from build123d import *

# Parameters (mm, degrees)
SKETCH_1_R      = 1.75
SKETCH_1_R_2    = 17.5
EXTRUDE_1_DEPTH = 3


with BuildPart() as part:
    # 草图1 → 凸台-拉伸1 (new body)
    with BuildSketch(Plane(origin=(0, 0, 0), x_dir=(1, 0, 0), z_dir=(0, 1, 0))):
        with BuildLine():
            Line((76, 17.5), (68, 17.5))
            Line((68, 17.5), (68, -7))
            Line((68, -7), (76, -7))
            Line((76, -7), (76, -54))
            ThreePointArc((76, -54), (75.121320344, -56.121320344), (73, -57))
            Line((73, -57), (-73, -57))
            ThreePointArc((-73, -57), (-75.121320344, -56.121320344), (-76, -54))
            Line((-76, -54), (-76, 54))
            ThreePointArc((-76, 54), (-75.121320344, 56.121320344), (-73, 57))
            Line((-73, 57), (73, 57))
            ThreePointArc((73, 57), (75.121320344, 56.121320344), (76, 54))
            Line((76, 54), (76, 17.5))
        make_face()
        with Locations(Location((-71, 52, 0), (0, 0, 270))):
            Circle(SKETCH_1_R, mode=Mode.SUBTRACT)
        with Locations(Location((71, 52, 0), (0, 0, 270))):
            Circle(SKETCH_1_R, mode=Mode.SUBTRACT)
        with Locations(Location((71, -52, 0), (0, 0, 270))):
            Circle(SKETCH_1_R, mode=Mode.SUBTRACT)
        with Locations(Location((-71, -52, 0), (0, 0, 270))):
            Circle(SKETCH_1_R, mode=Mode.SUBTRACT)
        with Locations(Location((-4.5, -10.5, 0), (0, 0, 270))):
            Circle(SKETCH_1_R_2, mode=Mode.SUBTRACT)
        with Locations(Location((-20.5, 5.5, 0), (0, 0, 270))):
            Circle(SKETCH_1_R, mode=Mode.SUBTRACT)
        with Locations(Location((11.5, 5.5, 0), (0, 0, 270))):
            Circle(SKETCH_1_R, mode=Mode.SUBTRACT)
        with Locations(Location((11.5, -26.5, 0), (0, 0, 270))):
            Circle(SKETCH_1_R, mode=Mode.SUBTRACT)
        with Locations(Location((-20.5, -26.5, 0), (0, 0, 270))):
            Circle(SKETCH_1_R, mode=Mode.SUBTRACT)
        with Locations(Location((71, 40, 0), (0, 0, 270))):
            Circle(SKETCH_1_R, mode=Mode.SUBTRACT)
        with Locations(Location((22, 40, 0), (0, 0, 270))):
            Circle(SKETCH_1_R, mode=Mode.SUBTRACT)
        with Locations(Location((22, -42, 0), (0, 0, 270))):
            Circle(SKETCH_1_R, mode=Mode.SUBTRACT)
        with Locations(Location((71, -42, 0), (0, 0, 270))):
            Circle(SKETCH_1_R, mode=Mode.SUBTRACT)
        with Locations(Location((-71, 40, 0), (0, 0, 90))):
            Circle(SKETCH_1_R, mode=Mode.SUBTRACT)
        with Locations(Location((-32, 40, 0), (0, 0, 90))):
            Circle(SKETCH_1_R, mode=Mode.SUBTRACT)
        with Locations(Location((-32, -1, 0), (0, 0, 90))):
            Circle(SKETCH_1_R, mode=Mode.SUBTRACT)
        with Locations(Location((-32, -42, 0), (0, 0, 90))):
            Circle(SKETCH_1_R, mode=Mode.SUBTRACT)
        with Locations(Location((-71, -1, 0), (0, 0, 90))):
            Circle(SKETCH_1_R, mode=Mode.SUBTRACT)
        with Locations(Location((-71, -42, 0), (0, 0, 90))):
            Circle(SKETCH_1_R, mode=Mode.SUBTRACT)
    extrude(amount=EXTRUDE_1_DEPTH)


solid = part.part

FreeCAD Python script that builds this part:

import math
import FreeCAD as App
import Part
import Sketcher

V = App.Vector
Q = App.Units.Quantity

doc = App.newDocument("Part")
params = doc.addObject("Spreadsheet::Sheet", "Params")
for row, (alias, value) in enumerate([
    ("sketch1_diameter", "35 mm"),
    ("sketch1_radius", "3 mm"),
    ("sketch1_diameter2", "3.5 mm"),
    ("sketch1_width", "8 mm"),
    ("sketch1_width2", "146 mm"),
    ("pad1_length", "3 mm"),
], start=1):
    params.set(f"A{row}", alias)
    params.set(f"B{row}", "=" + value)
    params.setAlias(f"B{row}", alias)

body = doc.addObject("PartDesign::Body", "Body")

# Sketch on XZ plane
sketch1 = doc.addObject("Sketcher::SketchObject", "Sketch")
body.addObject(sketch1)
sketch1.AttachmentSupport = (doc.XZ_Plane, [""])
sketch1.MapMode = "FlatFace"
sketch1.addGeometry(Part.LineSegment(V(68, -17.5, 0), V(76, -17.5, 0)), False)
sketch1.addGeometry(Part.LineSegment(V(76, -17.5, 0), V(76, -54, 0)), False)
sketch1.addGeometry(Part.ArcOfCircle(Part.Circle(V(73, -54, 0), V(0, 0, 1), 3), math.radians(-90), math.radians(0)), False)
sketch1.addGeometry(Part.LineSegment(V(73, -57, 0), V(-73, -57, 0)), False)
sketch1.addGeometry(Part.ArcOfCircle(Part.Circle(V(-73, -54, 0), V(0, 0, 1), 3), math.radians(180), math.radians(270)), False)
sketch1.addGeometry(Part.LineSegment(V(-76, -54, 0), V(-76, 54, 0)), False)
sketch1.addGeometry(Part.ArcOfCircle(Part.Circle(V(-73, 54, 0), V(0, 0, 1), 3), math.radians(90), math.radians(180)), False)
sketch1.addGeometry(Part.LineSegment(V(-73, 57, 0), V(73, 57, 0)), False)
sketch1.addGeometry(Part.ArcOfCircle(Part.Circle(V(73, 54, 0), V(0, 0, 1), 3), math.radians(0), math.radians(90)), False)
sketch1.addGeometry(Part.LineSegment(V(76, 54, 0), V(76, 7, 0)), False)
sketch1.addGeometry(Part.LineSegment(V(76, 7, 0), V(68, 7, 0)), False)
sketch1.addGeometry(Part.LineSegment(V(68, 7, 0), V(68, -17.5, 0)), False)
sketch1.addGeometry(Part.Circle(V(71, 52, 0), V(0, 0, 1), 1.8), False)
sketch1.addGeometry(Part.Circle(V(71, 42, 0), V(0, 0, 1), 1.8), False)
sketch1.addGeometry(Part.Circle(V(22, 42, 0), V(0, 0, 1), 1.8), False)
sketch1.addGeometry(Part.Circle(V(11.5, 26.5, 0), V(0, 0, 1), 1.8), False)
sketch1.addGeometry(Part.Circle(V(-32, 42, 0), V(0, 0, 1), 1.8), False)
sketch1.addGeometry(Part.Circle(V(-71, 52, 0), V(0, 0, 1), 1.8), False)
sketch1.addGeometry(Part.Circle(V(-71, 42, 0), V(0, 0, 1), 1.8), False)
sketch1.addGeometry(Part.Circle(V(-20.5, 26.5, 0), V(0, 0, 1), 1.8), False)
sketch1.addGeometry(Part.Circle(V(-4.5, 10.5, 0), V(0, 0, 1), 17.5), False)
sketch1.addGeometry(Part.Circle(V(-32, 1, 0), V(0, 0, 1), 1.8), False)
sketch1.addGeometry(Part.Circle(V(-71, 1, 0), V(0, 0, 1), 1.8), False)
sketch1.addGeometry(Part.Circle(V(11.5, -5.5, 0), V(0, 0, 1), 1.8), False)
sketch1.addGeometry(Part.Circle(V(71, -40, 0), V(0, 0, 1), 1.8), False)
sketch1.addGeometry(Part.Circle(V(71, -52, 0), V(0, 0, 1), 1.8), False)
sketch1.addGeometry(Part.Circle(V(22, -40, 0), V(0, 0, 1), 1.8), False)
sketch1.addGeometry(Part.Circle(V(-20.5, -5.5, 0), V(0, 0, 1), 1.8), False)
sketch1.addGeometry(Part.Circle(V(-32, -40, 0), V(0, 0, 1), 1.8), False)
sketch1.addGeometry(Part.Circle(V(-71, -40, 0), V(0, 0, 1), 1.8), False)
sketch1.addGeometry(Part.Circle(V(-71, -52, 0), V(0, 0, 1), 1.8), False)
sketch1.addConstraint(Sketcher.Constraint("Coincident", 0, 2, 1, 1))
sketch1.addConstraint(Sketcher.Constraint("Tangent", 1, 2, 2, 2))
sketch1.addConstraint(Sketcher.Constraint("Tangent", 2, 1, 3, 1))
sketch1.addConstraint(Sketcher.Constraint("Tangent", 3, 2, 4, 2))
sketch1.addConstraint(Sketcher.Constraint("Tangent", 4, 1, 5, 1))
sketch1.addConstraint(Sketcher.Constraint("Tangent", 5, 2, 6, 2))
sketch1.addConstraint(Sketcher.Constraint("Tangent", 6, 1, 7, 1))
sketch1.addConstraint(Sketcher.Constraint("Tangent", 7, 2, 8, 2))
sketch1.addConstraint(Sketcher.Constraint("Tangent", 8, 1, 9, 1))
sketch1.addConstraint(Sketcher.Constraint("Coincident", 9, 2, 10, 1))
sketch1.addConstraint(Sketcher.Constraint("Coincident", 10, 2, 11, 1))
sketch1.addConstraint(Sketcher.Constraint("Coincident", 11, 2, 0, 1))
sketch1.addConstraint(Sketcher.Constraint("Horizontal", 0))
sketch1.addConstraint(Sketcher.Constraint("Vertical", 1))
sketch1.addConstraint(Sketcher.Constraint("Horizontal", 3))
sketch1.addConstraint(Sketcher.Constraint("Vertical", 5))
sketch1.addConstraint(Sketcher.Constraint("Horizontal", 7))
sketch1.addConstraint(Sketcher.Constraint("Vertical", 9))
sketch1.addConstraint(Sketcher.Constraint("Horizontal", 10))
sketch1.addConstraint(Sketcher.Constraint("Vertical", 11))
sketch1.addConstraint(Sketcher.Constraint("Equal", 2, 4))
sketch1.addConstraint(Sketcher.Constraint("Equal", 4, 6))
sketch1.addConstraint(Sketcher.Constraint("Equal", 6, 8))
sketch1.addConstraint(Sketcher.Constraint("Equal", 12, 13))
sketch1.addConstraint(Sketcher.Constraint("Equal", 13, 14))
sketch1.addConstraint(Sketcher.Constraint("Equal", 14, 15))
sketch1.addConstraint(Sketcher.Constraint("Equal", 15, 16))
sketch1.addConstraint(Sketcher.Constraint("Equal", 16, 17))
sketch1.addConstraint(Sketcher.Constraint("Equal", 17, 18))
sketch1.addConstraint(Sketcher.Constraint("Equal", 18, 19))
sketch1.addConstraint(Sketcher.Constraint("Equal", 19, 21))
sketch1.addConstraint(Sketcher.Constraint("Equal", 21, 22))
sketch1.addConstraint(Sketcher.Constraint("Equal", 22, 23))
sketch1.addConstraint(Sketcher.Constraint("Equal", 23, 24))
sketch1.addConstraint(Sketcher.Constraint("Equal", 24, 25))
sketch1.addConstraint(Sketcher.Constraint("Equal", 25, 26))
sketch1.addConstraint(Sketcher.Constraint("Equal", 26, 27))
sketch1.addConstraint(Sketcher.Constraint("Equal", 27, 28))
sketch1.addConstraint(Sketcher.Constraint("Equal", 28, 29))
sketch1.addConstraint(Sketcher.Constraint("Equal", 29, 30))
sketch1.addConstraint(Sketcher.Constraint("Symmetric", 2, 3, 6, 3, -1, 1))
sketch1.addConstraint(Sketcher.Constraint("Symmetric", 17, 3, 25, 3, -1, 1))
sketch1.addConstraint(Sketcher.Constraint("Symmetric", 12, 3, 30, 3, -1, 1))
sketch1.addConstraint(Sketcher.Constraint("Symmetric", 12, 3, 17, 3, -2))
sketch1.addConstraint(Sketcher.Constraint("Symmetric", 13, 3, 18, 3, -2))
sketch1.addConstraint(Sketcher.Constraint("Symmetric", 24, 3, 29, 3, -2))
sketch1.addConstraint(Sketcher.Constraint("Horizontal", 13, 3, 14, 3))
sketch1.addConstraint(Sketcher.Constraint("Horizontal", 14, 3, 16, 3))
sketch1.addConstraint(Sketcher.Constraint("Horizontal", 15, 3, 19, 3))
sketch1.addConstraint(Sketcher.Constraint("Horizontal", 21, 3, 22, 3))
sketch1.addConstraint(Sketcher.Constraint("Horizontal", 24, 3, 26, 3))
sketch1.addConstraint(Sketcher.Constraint("Horizontal", 23, 3, 27, 3))
sketch1.addConstraint(Sketcher.Constraint("Horizontal", 26, 3, 28, 3))
sketch1.addConstraint(Sketcher.Constraint("Vertical", 2, 3, 8, 3))
sketch1.addConstraint(Sketcher.Constraint("Vertical", 12, 3, 13, 3))
sketch1.addConstraint(Sketcher.Constraint("Vertical", 16, 3, 21, 3))
sketch1.addConstraint(Sketcher.Constraint("Vertical", 18, 3, 22, 3))
sketch1.addConstraint(Sketcher.Constraint("Vertical", 15, 3, 23, 3))
sketch1.addConstraint(Sketcher.Constraint("Vertical", 13, 3, 24, 3))
sketch1.addConstraint(Sketcher.Constraint("Vertical", 14, 3, 26, 3))
sketch1.addConstraint(Sketcher.Constraint("Vertical", 19, 3, 27, 3))
sketch1.addConstraint(Sketcher.Constraint("Vertical", 21, 3, 28, 3))
sketch1.addConstraint(Sketcher.Constraint("Diameter", 20, Q("35 mm")))
sketch1.addConstraint(Sketcher.Constraint("Radius", 2, Q("3 mm")))
sketch1.addConstraint(Sketcher.Constraint("Diameter", 12, Q("3.5 mm")))
sketch1.addConstraint(Sketcher.Constraint("DistanceX", 0, 1, 0, 2, Q("8 mm")))
sketch1.addConstraint(Sketcher.Constraint("DistanceX", 3, 2, 3, 1, Q("146 mm")))
sketch1.addConstraint(Sketcher.Constraint("DistanceY", 5, 1, 5, 2, Q("108 mm")))
sketch1.addConstraint(Sketcher.Constraint("DistanceY", 9, 2, 9, 1, Q("47 mm")))
sketch1.addConstraint(Sketcher.Constraint("DistanceY", 1, 2, 1, 1, Q("36.5 mm")))
sketch1.addConstraint(Sketcher.Constraint("DistanceX", -1, 1, 12, 3, Q("71 mm")))
sketch1.addConstraint(Sketcher.Constraint("DistanceY", -1, 1, 12, 3, Q("52 mm")))
sketch1.addConstraint(Sketcher.Constraint("DistanceY", -1, 1, 13, 3, Q("42 mm")))
sketch1.addConstraint(Sketcher.Constraint("DistanceX", -1, 1, 14, 3, Q("22 mm")))
sketch1.addConstraint(Sketcher.Constraint("DistanceX", 16, 3, -1, 1, Q("32 mm")))
sketch1.addConstraint(Sketcher.Constraint("DistanceY", -1, 1, 21, 3, Q("1 mm")))
sketch1.addConstraint(Sketcher.Constraint("DistanceY", 24, 3, -1, 1, Q("40 mm")))
sketch1.addConstraint(Sketcher.Constraint("DistanceX", 19, 3, 15, 3, Q("32 mm")))
sketch1.addConstraint(Sketcher.Constraint("DistanceX", 20, 3, 15, 3, Q("16 mm")))
sketch1.addConstraint(Sketcher.Constraint("DistanceY", 20, 3, 15, 3, Q("16 mm")))
sketch1.addConstraint(Sketcher.Constraint("DistanceY", 23, 3, 20, 3, Q("16 mm")))
sketch1.addConstraint(Sketcher.Constraint("DistanceX", -1, 1, 15, 3, Q("11.5 mm")))
sketch1.addConstraint(Sketcher.Constraint("DistanceY", -1, 1, 15, 3, Q("26.5 mm")))
sketch1.setExpression("Constraints[62]", "Params.sketch1_diameter")
sketch1.setExpression("Constraints[63]", "Params.sketch1_radius")
sketch1.setExpression("Constraints[64]", "Params.sketch1_diameter2")
sketch1.setExpression("Constraints[65]", "Params.sketch1_width")
sketch1.setExpression("Constraints[66]", "Params.sketch1_width2")
pad1 = doc.addObject("PartDesign::Pad", "Pad")
body.addObject(pad1)
pad1.Profile = sketch1
pad1.setExpression("Length", "Params.pad1_length")
pad1.Reversed = True

doc.recompute()
